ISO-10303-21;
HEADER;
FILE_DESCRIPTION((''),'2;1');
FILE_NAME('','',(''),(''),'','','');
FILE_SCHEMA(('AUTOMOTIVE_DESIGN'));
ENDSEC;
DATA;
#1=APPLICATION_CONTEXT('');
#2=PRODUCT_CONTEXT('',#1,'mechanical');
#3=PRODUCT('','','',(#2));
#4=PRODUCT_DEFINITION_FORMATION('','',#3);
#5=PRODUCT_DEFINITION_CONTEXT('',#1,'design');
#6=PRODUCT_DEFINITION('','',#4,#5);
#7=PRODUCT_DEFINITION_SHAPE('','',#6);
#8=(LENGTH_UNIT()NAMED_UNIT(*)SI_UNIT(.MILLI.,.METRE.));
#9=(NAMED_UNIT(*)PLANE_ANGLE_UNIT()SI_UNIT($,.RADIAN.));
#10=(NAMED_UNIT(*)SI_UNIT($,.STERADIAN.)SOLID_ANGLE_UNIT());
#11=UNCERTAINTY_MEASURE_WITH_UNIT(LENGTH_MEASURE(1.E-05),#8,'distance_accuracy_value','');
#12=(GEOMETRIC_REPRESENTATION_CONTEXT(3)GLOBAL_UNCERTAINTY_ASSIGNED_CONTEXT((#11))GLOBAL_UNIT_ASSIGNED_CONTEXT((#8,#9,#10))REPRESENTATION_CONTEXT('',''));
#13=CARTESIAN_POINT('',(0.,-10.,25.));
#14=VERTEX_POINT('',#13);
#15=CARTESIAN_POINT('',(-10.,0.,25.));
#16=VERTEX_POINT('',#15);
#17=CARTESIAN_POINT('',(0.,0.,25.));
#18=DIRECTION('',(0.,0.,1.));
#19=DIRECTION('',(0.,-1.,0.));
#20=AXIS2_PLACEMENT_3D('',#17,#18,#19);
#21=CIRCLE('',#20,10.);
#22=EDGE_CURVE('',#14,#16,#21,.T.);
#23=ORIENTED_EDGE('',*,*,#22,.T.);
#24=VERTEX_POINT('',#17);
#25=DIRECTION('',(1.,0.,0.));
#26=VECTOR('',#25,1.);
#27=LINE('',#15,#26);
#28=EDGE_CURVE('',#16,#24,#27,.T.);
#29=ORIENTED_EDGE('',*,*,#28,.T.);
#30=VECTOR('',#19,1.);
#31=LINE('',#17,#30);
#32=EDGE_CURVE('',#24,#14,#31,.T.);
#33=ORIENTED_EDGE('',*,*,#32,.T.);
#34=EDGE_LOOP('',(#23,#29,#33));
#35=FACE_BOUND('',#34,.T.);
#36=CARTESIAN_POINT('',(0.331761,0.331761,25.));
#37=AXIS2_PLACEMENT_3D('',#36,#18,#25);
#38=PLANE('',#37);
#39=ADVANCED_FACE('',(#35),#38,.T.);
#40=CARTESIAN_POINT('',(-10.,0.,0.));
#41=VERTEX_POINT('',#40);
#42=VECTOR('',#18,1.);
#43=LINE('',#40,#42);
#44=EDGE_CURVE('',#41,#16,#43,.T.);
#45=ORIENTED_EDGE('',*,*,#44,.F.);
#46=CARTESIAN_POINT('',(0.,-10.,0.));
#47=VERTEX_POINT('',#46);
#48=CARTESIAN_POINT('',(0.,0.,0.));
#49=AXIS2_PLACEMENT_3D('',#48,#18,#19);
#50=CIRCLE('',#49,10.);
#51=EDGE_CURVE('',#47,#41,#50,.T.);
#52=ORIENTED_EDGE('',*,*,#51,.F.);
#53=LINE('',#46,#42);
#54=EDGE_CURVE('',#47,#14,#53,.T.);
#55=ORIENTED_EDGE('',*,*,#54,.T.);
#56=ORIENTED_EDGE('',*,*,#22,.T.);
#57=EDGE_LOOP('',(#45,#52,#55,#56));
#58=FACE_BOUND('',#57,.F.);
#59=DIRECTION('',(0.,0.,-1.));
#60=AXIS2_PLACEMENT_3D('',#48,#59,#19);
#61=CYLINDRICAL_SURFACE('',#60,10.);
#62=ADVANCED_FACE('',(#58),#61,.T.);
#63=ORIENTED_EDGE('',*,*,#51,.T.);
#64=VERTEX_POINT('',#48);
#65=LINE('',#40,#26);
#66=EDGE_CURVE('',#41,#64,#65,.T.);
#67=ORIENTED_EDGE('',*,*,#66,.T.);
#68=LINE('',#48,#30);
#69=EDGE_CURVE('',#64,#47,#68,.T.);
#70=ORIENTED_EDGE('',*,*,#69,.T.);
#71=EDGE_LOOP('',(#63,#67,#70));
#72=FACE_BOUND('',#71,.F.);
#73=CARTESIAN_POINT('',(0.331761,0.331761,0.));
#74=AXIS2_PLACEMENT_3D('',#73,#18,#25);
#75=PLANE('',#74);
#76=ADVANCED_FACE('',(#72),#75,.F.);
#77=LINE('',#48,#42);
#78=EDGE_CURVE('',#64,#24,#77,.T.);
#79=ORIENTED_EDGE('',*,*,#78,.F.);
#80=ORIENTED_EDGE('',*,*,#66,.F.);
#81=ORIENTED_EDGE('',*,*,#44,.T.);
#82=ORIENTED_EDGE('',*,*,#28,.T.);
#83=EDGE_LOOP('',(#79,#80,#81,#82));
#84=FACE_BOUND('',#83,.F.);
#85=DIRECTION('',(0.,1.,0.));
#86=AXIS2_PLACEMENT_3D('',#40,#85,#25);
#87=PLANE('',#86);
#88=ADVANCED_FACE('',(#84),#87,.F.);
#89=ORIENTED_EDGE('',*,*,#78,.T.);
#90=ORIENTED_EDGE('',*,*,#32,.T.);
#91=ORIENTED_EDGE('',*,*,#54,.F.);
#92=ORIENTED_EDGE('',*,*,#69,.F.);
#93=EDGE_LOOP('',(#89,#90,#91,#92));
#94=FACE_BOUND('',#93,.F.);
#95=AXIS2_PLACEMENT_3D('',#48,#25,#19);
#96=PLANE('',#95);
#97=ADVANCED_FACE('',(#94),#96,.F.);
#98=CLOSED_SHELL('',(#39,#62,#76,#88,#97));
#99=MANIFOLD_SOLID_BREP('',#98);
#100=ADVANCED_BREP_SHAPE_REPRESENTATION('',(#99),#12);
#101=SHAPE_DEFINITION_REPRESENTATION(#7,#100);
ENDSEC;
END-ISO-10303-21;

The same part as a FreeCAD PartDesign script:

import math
import FreeCAD as App
import Part
import Sketcher
from FreeCAD import Vector
Q = App.Units.Quantity

doc = App.newDocument("Part")
body = doc.addObject("PartDesign::Body", "Body")

# Sketch on XY plane
sketch1 = body.newObject("Sketcher::SketchObject", "Sketch")
sketch1.AttachmentSupport = (doc.getObject("XY_Plane"), [""])
sketch1.MapMode = "FlatFace"
sketch1.addGeometry(Part.LineSegment(Vector(-10, 0, 0), Vector(0, 0, 0)), False)
sketch1.addGeometry(Part.LineSegment(Vector(0, 0, 0), Vector(0, -10, 0)), False)
sketch1.addGeometry(Part.ArcOfCircle(Part.Circle(Vector(0, 0, 0), Vector(0, 0, 1), 10), math.radians(-90), math.radians(180)), False)
sketch1.addConstraint(Sketcher.Constraint("Coincident", 0, 2, 1, 1))
sketch1.addConstraint(Sketcher.Constraint("Coincident", 1, 2, 2, 1))
sketch1.addConstraint(Sketcher.Constraint("Coincident", 2, 2, 0, 1))
sketch1.addConstraint(Sketcher.Constraint("Horizontal", 0))
sketch1.addConstraint(Sketcher.Constraint("Vertical", 1))
sketch1.addConstraint(Sketcher.Constraint("Coincident", 2, 3, -1, 1))
sketch1.addConstraint(Sketcher.Constraint("Coincident", 0, 2, -1, 1))
sketch1.addConstraint(Sketcher.Constraint("Radius", 2, Q("10 mm")))
pad1 = body.newObject("PartDesign::Pad", "Pad")
pad1.Profile = sketch1
pad1.Length = 25

doc.recompute()
